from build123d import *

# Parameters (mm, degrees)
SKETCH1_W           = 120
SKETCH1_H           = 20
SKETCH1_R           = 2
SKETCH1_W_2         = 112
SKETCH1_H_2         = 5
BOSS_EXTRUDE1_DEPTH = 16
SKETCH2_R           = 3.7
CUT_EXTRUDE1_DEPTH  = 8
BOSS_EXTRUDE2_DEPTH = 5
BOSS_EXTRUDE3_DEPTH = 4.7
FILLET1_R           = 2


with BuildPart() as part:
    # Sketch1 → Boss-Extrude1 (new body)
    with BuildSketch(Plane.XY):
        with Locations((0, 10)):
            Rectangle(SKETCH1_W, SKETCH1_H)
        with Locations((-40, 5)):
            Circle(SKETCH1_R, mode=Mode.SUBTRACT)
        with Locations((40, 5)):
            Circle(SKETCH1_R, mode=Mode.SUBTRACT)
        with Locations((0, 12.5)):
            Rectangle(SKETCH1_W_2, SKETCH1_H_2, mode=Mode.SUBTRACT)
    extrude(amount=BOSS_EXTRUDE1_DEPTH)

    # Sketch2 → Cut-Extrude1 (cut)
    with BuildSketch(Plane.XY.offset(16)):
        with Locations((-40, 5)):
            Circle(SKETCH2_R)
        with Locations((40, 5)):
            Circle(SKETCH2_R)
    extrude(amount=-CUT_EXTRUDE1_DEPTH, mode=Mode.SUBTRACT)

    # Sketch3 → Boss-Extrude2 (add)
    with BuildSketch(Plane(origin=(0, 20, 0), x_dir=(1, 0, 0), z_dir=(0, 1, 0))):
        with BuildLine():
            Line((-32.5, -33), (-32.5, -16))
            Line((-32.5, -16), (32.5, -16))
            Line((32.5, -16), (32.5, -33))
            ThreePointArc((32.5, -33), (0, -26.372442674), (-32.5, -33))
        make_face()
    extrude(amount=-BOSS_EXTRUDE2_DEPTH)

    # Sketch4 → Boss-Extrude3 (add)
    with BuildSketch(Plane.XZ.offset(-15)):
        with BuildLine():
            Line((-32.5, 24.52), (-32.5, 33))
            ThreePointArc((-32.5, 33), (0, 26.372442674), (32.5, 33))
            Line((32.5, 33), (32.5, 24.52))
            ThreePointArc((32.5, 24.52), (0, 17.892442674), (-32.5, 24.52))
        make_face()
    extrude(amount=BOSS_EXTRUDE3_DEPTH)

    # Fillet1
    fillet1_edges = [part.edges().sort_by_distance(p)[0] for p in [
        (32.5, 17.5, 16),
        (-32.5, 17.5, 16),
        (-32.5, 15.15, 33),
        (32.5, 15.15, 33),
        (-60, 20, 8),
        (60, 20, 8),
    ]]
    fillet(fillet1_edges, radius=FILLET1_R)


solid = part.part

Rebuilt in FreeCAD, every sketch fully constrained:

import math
import FreeCAD as App
import Part
import Sketcher

V = App.Vector


def edges_at(feature, points):
    """Names of the edges that pass closest to the given points."""
    edges = feature.Shape.Edges
    near = lambda p: min(range(len(edges)), key=lambda i: edges[i].distToShape(Part.Vertex(*p))[0])
    return sorted({f"Edge{near(p) + 1}" for p in points})


def add_polygon(sketch, points):
    """Adds a closed chain of lines whose ends are joined by coincident constraints."""
    first, n = sketch.GeometryCount, len(points)
    for a, b in zip(points, points[1:] + points[:1]):
        sketch.addGeometry(Part.LineSegment(App.Vector(*a, 0), App.Vector(*b, 0)), False)
    for i in range(n):
        sketch.addConstraint(Sketcher.Constraint("Coincident", first + i, 2, first + (i + 1) % n, 1))

doc = App.newDocument("Part")
params = doc.addObject("Spreadsheet::Sheet", "Params")
for row, (alias, value) in enumerate([
    ("sketch1_diameter", "4 mm"),
    ("sketch1_width", "120 mm"),
    ("sketch1_width2", "112 mm"),
    ("sketch1_height", "20 mm"),
    ("sketch1_height2", "5 mm"),
    ("pad1_length", "16 mm"),
    ("sketch2_diameter", "7.4 mm"),
    ("pocket1_length", "8 mm"),
    ("sketch3_radius", "83 mm"),
    ("sketch3_width", "65 mm"),
    ("sketch3_height", "17 mm"),
    ("pad2_length", "5 mm"),
    ("sketch4_radius", "83 mm"),
    ("sketch4_height", "8.48 mm"),
    ("pad3_length", "4.7 mm"),
    ("fillet_radius", "2 mm"),
], start=1):
    params.set(f"A{row}", alias)
    params.set(f"B{row}", "=" + value)
    params.setAlias(f"B{row}", alias)

body = doc.addObject("PartDesign::Body", "Body")

# Sketch on XY plane
sketch1 = body.newObject("Sketcher::SketchObject", "Sketch")
sketch1.AttachmentSupport = (doc.getObject("XY_Plane"), [""])
sketch1.MapMode = "FlatFace"
add_polygon(sketch1, [(-60, 20), (-60, 0), (60, 0), (60, 20)])  # lines 0-3
sketch1.addGeometry(Part.Circle(V(-40, 5, 0), V(0, 0, 1), 2), False)  # 4
sketch1.addGeometry(Part.Circle(V(40, 5, 0), V(0, 0, 1), 2), False)  # 5
add_polygon(sketch1, [(56, 10), (-56, 10), (-56, 15), (56, 15)])  # lines 6-9
sketch1.addConstraint(Sketcher.Constraint("Vertical", 0))
sketch1.addConstraint(Sketcher.Constraint("Horizontal", 1))
sketch1.addConstraint(Sketcher.Constraint("Vertical", 2))
sketch1.addConstraint(Sketcher.Constraint("Horizontal", 3))
sketch1.addConstraint(Sketcher.Constraint("Horizontal", 6))
sketch1.addConstraint(Sketcher.Constraint("Vertical", 7))
sketch1.addConstraint(Sketcher.Constraint("Horizontal", 8))
sketch1.addConstraint(Sketcher.Constraint("Vertical", 9))
sketch1.addConstraint(Sketcher.Constraint("Equal", 4, 5))
sketch1.addConstraint(Sketcher.Constraint("Symmetric", 0, 2, 1, 2, -1, 1))
sketch1.addConstraint(Sketcher.Constraint("Symmetric", 4, 3, 5, 3, -2))
sketch1.addConstraint(Sketcher.Constraint("Diameter", 4, 4.0))
sketch1.addConstraint(Sketcher.Constraint("DistanceX", 1, 1, 1, 2, 120.0))
sketch1.addConstraint(Sketcher.Constraint("DistanceX", 6, 2, 6, 1, 112.0))
sketch1.addConstraint(Sketcher.Constraint("DistanceY", 0, 2, 0, 1, 20.0))
sketch1.addConstraint(Sketcher.Constraint("DistanceY", 7, 1, 7, 2, 5.0))
sketch1.addConstraint(Sketcher.Constraint("DistanceX", 4, 3, -1, 1, 40.0))
sketch1.addConstraint(Sketcher.Constraint("DistanceY", -1, 1, 4, 3, 5.0))
sketch1.addConstraint(Sketcher.Constraint("DistanceX", 6, 2, -1, 1, 56.0))
sketch1.addConstraint(Sketcher.Constraint("DistanceY", -1, 1, 6, 2, 10.0))
sketch1.setExpression("Constraints[19]", "Params.sketch1_diameter")
sketch1.setExpression("Constraints[20]", "Params.sketch1_width")
sketch1.setExpression("Constraints[21]", "Params.sketch1_width2")
sketch1.setExpression("Constraints[22]", "Params.sketch1_height")
sketch1.setExpression("Constraints[23]", "Params.sketch1_height2")
pad1 = body.newObject("PartDesign::Pad", "Pad")
pad1.Profile = sketch1
pad1.setExpression("Length", "Params.pad1_length")

# Sketch on XY plane
sketch2 = body.newObject("Sketcher::SketchObject", "Sketch001")
sketch2.AttachmentSupport = (doc.getObject("XY_Plane"), [""])
sketch2.MapMode = "FlatFace"
sketch2.AttachmentOffset = App.Placement(V(0, 0, 16), App.Rotation())
sketch2.addGeometry(Part.Circle(V(-40, 5, 0), V(0, 0, 1), 3.7), False)
sketch2.addGeometry(Part.Circle(V(40, 5, 0), V(0, 0, 1), 3.7), False)
sketch2.addConstraint(Sketcher.Constraint("Equal", 0, 1))
sketch2.addConstraint(Sketcher.Constraint("Symmetric", 0, 3, 1, 3, -2))
sketch2.addConstraint(Sketcher.Constraint("Diameter", 0, 7.4))
sketch2.addConstraint(Sketcher.Constraint("DistanceX", 0, 3, -1, 1, 40.0))
sketch2.addConstraint(Sketcher.Constraint("DistanceY", -1, 1, 0, 3, 5.0))
sketch2.setExpression("Constraints[2]", "Params.sketch2_diameter")
pocket1 = body.newObject("PartDesign::Pocket", "Pocket")
pocket1.Profile = sketch2
pocket1.setExpression("Length", "Params.pocket1_length")

# Sketch on XZ plane
sketch3 = body.newObject("Sketcher::SketchObject", "Sketch002")
sketch3.AttachmentSupport = (doc.getObject("XZ_Plane"), [""])
sketch3.MapMode = "FlatFace"
sketch3.AttachmentOffset = App.Placement(V(0, 0, -20), App.Rotation())
sketch3.addGeometry(Part.LineSegment(V(-32, 16, 0), V(-32, 33, 0)), False)
sketch3.addGeometry(Part.ArcOfCircle(Part.Circle(V(0, 109, 0), V(0, 0, 1), 83), math.radians(-113), math.radians(-67)), False)
sketch3.addGeometry(Part.LineSegment(V(32, 33, 0), V(32, 16, 0)), False)
sketch3.addGeometry(Part.LineSegment(V(32, 16, 0), V(-32, 16, 0)), False)
sketch3.addConstraint(Sketcher.Constraint("Coincident", 0, 2, 1, 1))
sketch3.addConstraint(Sketcher.Constraint("Coincident", 1, 2, 2, 1))
sketch3.addConstraint(Sketcher.Constraint("Coincident", 2, 2, 3, 1))
sketch3.addConstraint(Sketcher.Constraint("Coincident", 3, 2, 0, 1))
sketch3.addConstraint(Sketcher.Constraint("Vertical", 0))
sketch3.addConstraint(Sketcher.Constraint("Vertical", 2))
sketch3.addConstraint(Sketcher.Constraint("Horizontal", 3))
sketch3.addConstraint(Sketcher.Constraint("Symmetric", 0, 2, 1, 2, -2))
sketch3.addConstraint(Sketcher.Constraint("Radius", 1, 83.0))
sketch3.addConstraint(Sketcher.Constraint("DistanceX", 3, 2, 3, 1, 65.0))
sketch3.addConstraint(Sketcher.Constraint("DistanceY", 0, 1, 0, 2, 17.0))
sketch3.addConstraint(Sketcher.Constraint("DistanceY", -1, 1, 0, 2, 33.0))
sketch3.setExpression("Constraints[8]", "Params.sketch3_radius")
sketch3.setExpression("Constraints[9]", "Params.sketch3_width")
sketch3.setExpression("Constraints[10]", "Params.sketch3_height")
pad2 = body.newObject("PartDesign::Pad", "Pad001")
pad2.Profile = sketch3
pad2.setExpression("Length", "Params.pad2_length")

# Sketch on XZ plane
sketch4 = body.newObject("Sketcher::SketchObject", "Sketch003")
sketch4.AttachmentSupport = (doc.getObject("XZ_Plane"), [""])
sketch4.MapMode = "FlatFace"
sketch4.AttachmentOffset = App.Placement(V(0, 0, -15), App.Rotation())
sketch4.addGeometry(Part.LineSegment(V(-32, 33, 0), V(-32, 25, 0)), False)
sketch4.addGeometry(Part.ArcOfCircle(Part.Circle(V(0, 101, 0), V(0, 0, 1), 83), math.radians(-113), math.radians(-67)), False)
sketch4.addGeometry(Part.LineSegment(V(32, 25, 0), V(32, 33, 0)), False)
sketch4.addGeometry(Part.ArcOfCircle(Part.Circle(V(0, 109, 0), V(0, 0, 1), 83), math.radians(-113), math.radians(-67)), False)
sketch4.addConstraint(Sketcher.Constraint("Coincident", 0, 2, 1, 1))
sketch4.addConstraint(Sketcher.Constraint("Coincident", 1, 2, 2, 1))
sketch4.addConstraint(Sketcher.Constraint("Coincident", 2, 2, 3, 2))
sketch4.addConstraint(Sketcher.Constraint("Coincident", 3, 1, 0, 1))
sketch4.addConstraint(Sketcher.Constraint("Vertical", 0))
sketch4.addConstraint(Sketcher.Constraint("Vertical", 2))
sketch4.addConstraint(Sketcher.Constraint("Equal", 1, 3))
sketch4.addConstraint(Sketcher.Constraint("Symmetric", 0, 2, 1, 2, -2))
sketch4.addConstraint(Sketcher.Constraint("PointOnObject", 3, 3, -2))
sketch4.addConstraint(Sketcher.Constraint("Radius", 1, 83.0))
sketch4.addConstraint(Sketcher.Constraint("DistanceY", -1, 1, 2, 2, 33.0))
sketch4.addConstraint(Sketcher.Constraint("DistanceX", 0, 2, 1, 2, 65.0))
sketch4.addConstraint(Sketcher.Constraint("DistanceY", 0, 2, 0, 1, 8.48))
sketch4.setExpression("Constraints[9]", "Params.sketch4_radius")
sketch4.setExpression("Constraints[12]", "Params.sketch4_height")
pad3 = body.newObject("PartDesign::Pad", "Pad002")
pad3.Profile = sketch4
pad3.setExpression("Length", "Params.pad3_length")
doc.recompute()

fillet = body.newObject("PartDesign::Fillet", "Fillet")
fillet.Base = (pad3, edges_at(pad3, [
    (32.5, 17.5, 16),
    (-32.5, 17.5, 16),
    (-32.5, 15.15, 33),
    (32.5, 15.15, 33),
    (-60, 20, 8),
    (60, 20, 8),
]))
fillet.setExpression("Radius", "Params.fillet_radius")

doc.recompute()
